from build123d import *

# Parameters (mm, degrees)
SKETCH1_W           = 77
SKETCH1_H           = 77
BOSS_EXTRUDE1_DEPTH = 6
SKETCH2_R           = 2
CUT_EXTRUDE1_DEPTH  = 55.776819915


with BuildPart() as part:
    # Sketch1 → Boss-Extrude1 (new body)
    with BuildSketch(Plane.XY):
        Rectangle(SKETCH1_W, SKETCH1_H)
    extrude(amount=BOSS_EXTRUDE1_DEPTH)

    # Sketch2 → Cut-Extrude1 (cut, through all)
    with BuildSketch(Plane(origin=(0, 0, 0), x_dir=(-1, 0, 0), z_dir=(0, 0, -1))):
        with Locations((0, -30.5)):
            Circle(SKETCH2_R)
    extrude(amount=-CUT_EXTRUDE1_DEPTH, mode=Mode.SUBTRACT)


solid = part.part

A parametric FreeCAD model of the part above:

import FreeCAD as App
import Part
import Sketcher


def add_polygon(sketch, points):
    """Adds a closed chain of lines whose ends are joined by coincident constraints."""
    first, n = sketch.GeometryCount, len(points)
    for a, b in zip(points, points[1:] + points[:1]):
        sketch.addGeometry(Part.LineSegment(App.Vector(*a, 0), App.Vector(*b, 0)), False)
    for i in range(n):
        sketch.addConstraint(Sketcher.Constraint("Coincident", first + i, 2, first + (i + 1) % n, 1))

doc = App.newDocument("Part")
body = doc.addObject("PartDesign::Body", "Body")

# Sketch on XY plane
sketch1 = body.newObject("Sketcher::SketchObject", "Sketch")
sketch1.AttachmentSupport = (doc.getObject("XY_Plane"), [""])
sketch1.MapMode = "FlatFace"
add_polygon(sketch1, [(-38, 38), (-38, -38), (38, -38), (38, 38)])  # lines 0-3
sketch1.addConstraint([
    Sketcher.Constraint("Vertical", 0),
    Sketcher.Constraint("Horizontal", 1),
    Sketcher.Constraint("Vertical", 2),
    Sketcher.Constraint("Horizontal", 3),
    Sketcher.Constraint("Symmetric", 0, 2, 2, 2, -1, 1),
    Sketcher.Constraint("Equal", 3, 0),
    Sketcher.Constraint("DistanceX", 1, 1, 1, 2, 77.0),
])
pad1 = body.newObject("PartDesign::Pad", "Pad")
pad1.Profile = sketch1
pad1.Length = 6

# Sketch on XY plane
sketch2 = body.newObject("Sketcher::SketchObject", "Sketch001")
sketch2.AttachmentSupport = (doc.getObject("XY_Plane"), [""])
sketch2.MapMode = "FlatFace"
sketch2.addGeometry(Part.Circle(App.Vector(0, -30.5, 0), App.Vector(0, 0, 1), 2), False)
sketch2.addConstraint([
    Sketcher.Constraint("PointOnObject", 0, 3, -2),
    Sketcher.Constraint("Diameter", 0, 4.0),
    Sketcher.Constraint("DistanceY", 0, 3, -1, 1, 30.5),
])
pocket1 = body.newObject("PartDesign::Pocket", "Pocket")
pocket1.Profile = sketch2
pocket1.Type = "ThroughAll"
pocket1.Reversed = True

doc.recompute()
